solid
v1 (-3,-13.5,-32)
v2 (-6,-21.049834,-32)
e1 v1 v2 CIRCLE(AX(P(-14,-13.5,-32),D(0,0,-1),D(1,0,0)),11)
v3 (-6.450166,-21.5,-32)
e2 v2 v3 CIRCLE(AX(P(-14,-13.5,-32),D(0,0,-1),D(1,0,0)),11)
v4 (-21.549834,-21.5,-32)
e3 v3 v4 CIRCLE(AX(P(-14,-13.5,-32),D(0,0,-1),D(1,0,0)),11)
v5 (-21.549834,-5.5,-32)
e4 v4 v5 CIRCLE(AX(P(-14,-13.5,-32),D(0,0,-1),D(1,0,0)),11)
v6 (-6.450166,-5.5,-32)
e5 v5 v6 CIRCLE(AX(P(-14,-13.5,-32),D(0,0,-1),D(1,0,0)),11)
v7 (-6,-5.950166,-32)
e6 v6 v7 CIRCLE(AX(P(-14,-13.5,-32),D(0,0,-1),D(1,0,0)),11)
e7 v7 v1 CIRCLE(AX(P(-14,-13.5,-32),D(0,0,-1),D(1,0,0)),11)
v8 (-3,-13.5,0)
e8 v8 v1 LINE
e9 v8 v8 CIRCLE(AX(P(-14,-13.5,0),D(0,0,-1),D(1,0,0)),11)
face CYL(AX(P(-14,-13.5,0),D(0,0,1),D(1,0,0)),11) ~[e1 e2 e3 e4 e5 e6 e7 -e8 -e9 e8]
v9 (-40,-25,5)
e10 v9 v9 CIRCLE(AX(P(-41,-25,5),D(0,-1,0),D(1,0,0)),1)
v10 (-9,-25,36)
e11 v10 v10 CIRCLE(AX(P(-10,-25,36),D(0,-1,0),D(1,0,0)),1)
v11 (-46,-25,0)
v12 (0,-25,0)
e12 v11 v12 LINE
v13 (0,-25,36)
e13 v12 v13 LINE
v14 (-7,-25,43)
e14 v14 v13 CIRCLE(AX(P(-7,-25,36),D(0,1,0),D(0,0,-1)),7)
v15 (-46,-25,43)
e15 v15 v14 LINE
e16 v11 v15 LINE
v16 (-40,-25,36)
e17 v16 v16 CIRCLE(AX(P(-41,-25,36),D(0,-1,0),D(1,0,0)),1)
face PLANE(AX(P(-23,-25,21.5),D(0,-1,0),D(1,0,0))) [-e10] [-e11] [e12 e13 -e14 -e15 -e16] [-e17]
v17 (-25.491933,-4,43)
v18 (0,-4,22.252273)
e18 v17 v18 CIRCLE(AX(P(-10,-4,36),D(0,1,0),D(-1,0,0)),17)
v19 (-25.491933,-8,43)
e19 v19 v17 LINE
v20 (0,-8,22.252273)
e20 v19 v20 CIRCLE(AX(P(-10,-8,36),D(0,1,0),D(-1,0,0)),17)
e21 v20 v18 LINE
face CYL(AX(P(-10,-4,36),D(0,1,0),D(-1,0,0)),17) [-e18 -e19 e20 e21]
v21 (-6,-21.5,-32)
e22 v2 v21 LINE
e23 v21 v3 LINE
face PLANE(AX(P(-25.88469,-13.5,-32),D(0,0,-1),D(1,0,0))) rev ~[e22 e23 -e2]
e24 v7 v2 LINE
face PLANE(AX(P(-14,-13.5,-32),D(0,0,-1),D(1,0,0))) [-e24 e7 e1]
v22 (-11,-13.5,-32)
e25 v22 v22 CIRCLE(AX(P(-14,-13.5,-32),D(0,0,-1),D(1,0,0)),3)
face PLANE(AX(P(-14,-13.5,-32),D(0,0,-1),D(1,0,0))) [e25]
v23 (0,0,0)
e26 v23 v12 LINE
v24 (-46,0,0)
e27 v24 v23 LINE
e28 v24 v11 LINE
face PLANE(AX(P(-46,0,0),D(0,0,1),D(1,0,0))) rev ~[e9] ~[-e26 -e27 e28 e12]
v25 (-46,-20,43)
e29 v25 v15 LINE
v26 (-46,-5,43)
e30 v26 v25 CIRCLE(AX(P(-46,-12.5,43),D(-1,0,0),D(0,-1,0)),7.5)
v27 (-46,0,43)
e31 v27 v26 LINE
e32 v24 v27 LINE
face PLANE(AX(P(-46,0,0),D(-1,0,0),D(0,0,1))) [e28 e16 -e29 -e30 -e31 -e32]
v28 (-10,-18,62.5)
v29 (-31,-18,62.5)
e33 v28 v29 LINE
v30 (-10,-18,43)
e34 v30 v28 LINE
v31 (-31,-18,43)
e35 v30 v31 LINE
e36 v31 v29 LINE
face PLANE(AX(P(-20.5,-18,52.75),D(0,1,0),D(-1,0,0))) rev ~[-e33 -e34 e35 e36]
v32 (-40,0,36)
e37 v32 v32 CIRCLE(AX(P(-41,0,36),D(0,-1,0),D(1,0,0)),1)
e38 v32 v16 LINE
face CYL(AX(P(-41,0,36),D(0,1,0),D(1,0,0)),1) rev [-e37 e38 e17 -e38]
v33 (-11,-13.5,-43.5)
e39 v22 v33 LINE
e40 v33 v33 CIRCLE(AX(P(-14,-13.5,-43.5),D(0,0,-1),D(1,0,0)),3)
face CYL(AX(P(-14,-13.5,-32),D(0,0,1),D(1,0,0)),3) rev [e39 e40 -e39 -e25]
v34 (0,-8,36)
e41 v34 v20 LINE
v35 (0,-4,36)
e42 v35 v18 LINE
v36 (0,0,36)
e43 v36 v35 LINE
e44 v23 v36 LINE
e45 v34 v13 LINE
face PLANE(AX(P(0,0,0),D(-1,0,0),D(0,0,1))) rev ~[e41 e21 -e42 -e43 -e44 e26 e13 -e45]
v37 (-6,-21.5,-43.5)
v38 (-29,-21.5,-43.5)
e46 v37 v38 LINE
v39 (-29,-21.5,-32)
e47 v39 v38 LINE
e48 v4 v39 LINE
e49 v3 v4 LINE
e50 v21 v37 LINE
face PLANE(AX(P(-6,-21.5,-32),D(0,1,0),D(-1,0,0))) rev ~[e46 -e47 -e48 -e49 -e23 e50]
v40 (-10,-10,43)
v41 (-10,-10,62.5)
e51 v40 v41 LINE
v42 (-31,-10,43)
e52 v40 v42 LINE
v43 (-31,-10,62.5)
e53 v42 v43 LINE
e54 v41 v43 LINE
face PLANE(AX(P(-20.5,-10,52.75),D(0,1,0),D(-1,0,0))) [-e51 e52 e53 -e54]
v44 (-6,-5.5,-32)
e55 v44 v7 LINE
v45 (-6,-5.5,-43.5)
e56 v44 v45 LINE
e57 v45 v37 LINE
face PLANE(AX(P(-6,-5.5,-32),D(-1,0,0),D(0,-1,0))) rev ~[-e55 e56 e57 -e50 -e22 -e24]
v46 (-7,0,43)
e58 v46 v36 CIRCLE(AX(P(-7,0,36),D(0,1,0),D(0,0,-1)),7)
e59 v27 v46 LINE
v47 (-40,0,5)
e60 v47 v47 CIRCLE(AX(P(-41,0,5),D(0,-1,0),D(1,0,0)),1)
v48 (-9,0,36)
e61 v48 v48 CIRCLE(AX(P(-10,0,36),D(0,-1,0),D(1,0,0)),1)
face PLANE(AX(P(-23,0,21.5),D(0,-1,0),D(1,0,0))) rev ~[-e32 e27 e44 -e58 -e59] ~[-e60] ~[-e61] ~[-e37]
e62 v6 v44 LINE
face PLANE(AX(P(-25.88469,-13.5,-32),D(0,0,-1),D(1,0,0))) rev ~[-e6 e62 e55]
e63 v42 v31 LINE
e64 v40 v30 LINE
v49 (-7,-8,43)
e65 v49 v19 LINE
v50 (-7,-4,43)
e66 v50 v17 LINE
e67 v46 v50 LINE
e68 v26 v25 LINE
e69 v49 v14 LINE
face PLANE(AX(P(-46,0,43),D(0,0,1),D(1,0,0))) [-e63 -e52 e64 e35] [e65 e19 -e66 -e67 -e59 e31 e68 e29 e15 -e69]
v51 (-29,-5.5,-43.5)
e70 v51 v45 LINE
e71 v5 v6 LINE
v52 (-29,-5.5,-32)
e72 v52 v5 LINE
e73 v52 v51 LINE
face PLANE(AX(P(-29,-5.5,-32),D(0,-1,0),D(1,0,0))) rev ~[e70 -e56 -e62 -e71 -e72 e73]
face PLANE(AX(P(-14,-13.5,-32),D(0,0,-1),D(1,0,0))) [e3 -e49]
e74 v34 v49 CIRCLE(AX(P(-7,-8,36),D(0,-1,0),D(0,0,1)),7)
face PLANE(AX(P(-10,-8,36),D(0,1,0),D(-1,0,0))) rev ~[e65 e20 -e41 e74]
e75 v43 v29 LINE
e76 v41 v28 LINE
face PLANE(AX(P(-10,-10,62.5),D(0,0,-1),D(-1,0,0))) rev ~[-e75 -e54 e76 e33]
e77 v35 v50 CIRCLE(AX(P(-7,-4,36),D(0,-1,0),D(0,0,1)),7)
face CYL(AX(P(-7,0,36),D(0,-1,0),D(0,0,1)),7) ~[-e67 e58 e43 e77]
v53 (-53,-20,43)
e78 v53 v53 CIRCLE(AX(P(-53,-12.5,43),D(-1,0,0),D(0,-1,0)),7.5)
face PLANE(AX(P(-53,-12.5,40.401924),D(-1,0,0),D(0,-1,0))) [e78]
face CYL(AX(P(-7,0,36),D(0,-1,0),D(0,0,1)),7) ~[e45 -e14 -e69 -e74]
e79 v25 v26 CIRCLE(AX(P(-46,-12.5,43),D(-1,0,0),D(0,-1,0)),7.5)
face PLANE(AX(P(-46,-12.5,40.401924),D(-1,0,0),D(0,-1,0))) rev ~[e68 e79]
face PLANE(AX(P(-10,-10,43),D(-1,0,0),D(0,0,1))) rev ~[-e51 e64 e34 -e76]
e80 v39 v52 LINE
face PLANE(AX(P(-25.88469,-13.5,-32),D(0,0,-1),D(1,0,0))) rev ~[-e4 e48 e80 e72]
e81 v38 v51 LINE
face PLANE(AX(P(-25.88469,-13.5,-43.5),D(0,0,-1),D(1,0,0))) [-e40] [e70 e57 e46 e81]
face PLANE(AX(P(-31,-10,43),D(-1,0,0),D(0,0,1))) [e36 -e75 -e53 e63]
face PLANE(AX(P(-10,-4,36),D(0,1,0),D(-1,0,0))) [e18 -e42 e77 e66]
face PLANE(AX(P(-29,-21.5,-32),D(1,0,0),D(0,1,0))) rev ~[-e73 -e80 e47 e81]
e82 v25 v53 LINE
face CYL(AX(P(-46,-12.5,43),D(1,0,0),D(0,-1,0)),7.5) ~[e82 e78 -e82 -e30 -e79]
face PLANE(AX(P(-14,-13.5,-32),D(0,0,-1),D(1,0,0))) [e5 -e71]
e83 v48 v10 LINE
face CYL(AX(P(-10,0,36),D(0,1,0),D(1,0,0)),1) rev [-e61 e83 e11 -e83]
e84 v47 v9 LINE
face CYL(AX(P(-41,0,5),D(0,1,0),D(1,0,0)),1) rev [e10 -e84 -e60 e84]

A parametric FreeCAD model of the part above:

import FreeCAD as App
import Part
import Sketcher

V = App.Vector


def edges_at(feature, points):
    """Names of the edges that pass closest to the given points."""
    edges = feature.Shape.Edges
    near = lambda p: min(range(len(edges)), key=lambda i: edges[i].distToShape(Part.Vertex(*p))[0])
    return sorted({f"Edge{near(p) + 1}" for p in points})


def add_polygon(sketch, points):
    """Adds a closed chain of lines whose ends are joined by coincident constraints."""
    first, n = sketch.GeometryCount, len(points)
    for a, b in zip(points, points[1:] + points[:1]):
        sketch.addGeometry(Part.LineSegment(App.Vector(*a, 0), App.Vector(*b, 0)), False)
    for i in range(n):
        sketch.addConstraint(Sketcher.Constraint("Coincident", first + i, 2, first + (i + 1) % n, 1))

doc = App.newDocument("Part")
body = doc.addObject("PartDesign::Body", "Body")

sketch1 = body.newObject("Sketcher::SketchObject", "Sketch")
sketch1.AttachmentSupport = (doc.getObject("XZ_Plane"), [""])
sketch1.MapMode = "FlatFace"
add_polygon(sketch1, [(-46, 43), (-46, 0), (0, 0), (0, 43)])
sketch1.addGeometry(Part.Circle(V(-41, 5, 0), V(0, 0, 1), 1), False)
sketch1.addGeometry(Part.Circle(V(-41, 36, 0), V(0, 0, 1), 1), False)
sketch1.addGeometry(Part.Circle(V(-10, 36, 0), V(0, 0, 1), 1), False)
sketch1.addConstraint([
    Sketcher.Constraint("Vertical", 0),
    Sketcher.Constraint("Horizontal", 1),
    Sketcher.Constraint("Vertical", 2),
    Sketcher.Constraint("Horizontal", 3),
    Sketcher.Constraint("Coincident", 1, 2, -1, 1),
    Sketcher.Constraint("Equal", 4, 5),
    Sketcher.Constraint("Equal", 5, 6),
    Sketcher.Constraint("Horizontal", 5, 3, 6, 3),
    Sketcher.Constraint("Vertical", 4, 3, 5, 3),
    Sketcher.Constraint("Diameter", 4, 2.0),
    Sketcher.Constraint("DistanceX", 1, 1, 1, 2, 46.0),
    Sketcher.Constraint("DistanceY", 0, 2, 0, 1, 43.0),
    Sketcher.Constraint("DistanceX", 4, 3, -1, 1, 41.0),
    Sketcher.Constraint("DistanceY", -1, 1, 4, 3, 5.0),
    Sketcher.Constraint("DistanceY", -1, 1, 5, 3, 36.0),
    Sketcher.Constraint("DistanceX", 6, 3, -1, 1, 10.0),
])
pad1 = body.newObject("PartDesign::Pad", "Pad")
pad1.Profile = sketch1
pad1.Length = 25
doc.recompute()

fillet = body.newObject("PartDesign::Fillet", "Fillet")
fillet.Base = (pad1, edges_at(pad1, [(0, -12.5, 43)]))
fillet.Radius = 7

sketch2 = body.newObject("Sketcher::SketchObject", "Sketch001")
sketch2.AttachmentSupport = (doc.getObject("XZ_Plane"), [""])
sketch2.MapMode = "FlatFace"
sketch2.AttachmentOffset = App.Placement(V(0, 0, 4), App.Rotation())
sketch2.addGeometry([
    Part.Circle(V(-10, 36, 0), V(0, 0, 1), 17),
    Part.Circle(V(-10, 36, 0), V(0, 0, 1), 1),
], False)
sketch2.addConstraint([
    Sketcher.Constraint("Coincident", 1, 3, 0, 3),
    Sketcher.Constraint("Diameter", 0, 34.0),
    Sketcher.Constraint("Diameter", 1, 2.0),
    Sketcher.Constraint("DistanceX", 0, 3, -1, 1, 10.0),
    Sketcher.Constraint("DistanceY", -1, 1, 0, 3, 36.0),
])
pad2 = body.newObject("PartDesign::Pad", "Pad001")
pad2.Profile = sketch2
pad2.Length = 4

sketch3 = body.newObject("Sketcher::SketchObject", "Sketch002")
sketch3.AttachmentSupport = (doc.getObject("XZ_Plane"), [""])
sketch3.MapMode = "FlatFace"
sketch3.AttachmentOffset = App.Placement(V(0, 0, 10), App.Rotation())
add_polygon(sketch3, [(-10, 62.5), (-10, 43), (-31, 43), (-31, 62.5)])
sketch3.addConstraint([
    Sketcher.Constraint("Vertical", 0),
    Sketcher.Constraint("Horizontal", 1),
    Sketcher.Constraint("Vertical", 2),
    Sketcher.Constraint("Horizontal", 3),
    Sketcher.Constraint("DistanceX", 1, 2, 1, 1, 21.0),
    Sketcher.Constraint("DistanceY", 0, 2, 0, 1, 19.5),
    Sketcher.Constraint("DistanceX", 0, 2, -1, 1, 10.0),
    Sketcher.Constraint("DistanceY", -1, 1, 0, 2, 43.0),
])
pad3 = body.newObject("PartDesign::Pad", "Pad002")
pad3.Profile = sketch3
pad3.Length = 8

sketch4 = body.newObject("Sketcher::SketchObject", "Sketch003")
sketch4.AttachmentSupport = (doc.getObject("YZ_Plane"), [""])
sketch4.MapMode = "FlatFace"
sketch4.AttachmentOffset = App.Placement(V(0, 0, -46), App.Rotation())
sketch4.addGeometry(Part.Circle(V(-12.5, 43, 0), V(0, 0, 1), 7.5), False)
sketch4.addConstraint([
    Sketcher.Constraint("Diameter", 0, 15.0),
    Sketcher.Constraint("DistanceY", -1, 1, 0, 3, 43.0),
    Sketcher.Constraint("DistanceX", 0, 3, -1, 1, 12.5),
])
pad4 = body.newObject("PartDesign::Pad", "Pad003")
pad4.Profile = sketch4
pad4.Length = 7
pad4.Reversed = True

sketch5 = body.newObject("Sketcher::SketchObject", "Sketch004")
sketch5.AttachmentSupport = (doc.getObject("XY_Plane"), [""])
sketch5.MapMode = "FlatFace"
sketch5.addGeometry(Part.Circle(V(-14, -13.5, 0), V(0, 0, 1), 11), False)
sketch5.addConstraint([
    Sketcher.Constraint("Diameter", 0, 22.0),
    Sketcher.Constraint("DistanceX", 0, 3, -1, 1, 14.0),
    Sketcher.Constraint("DistanceY", 0, 3, -1, 1, 13.5),
])
pad5 = body.newObject("PartDesign::Pad", "Pad004")
pad5.Profile = sketch5
pad5.Length = 32
pad5.Reversed = True

sketch6 = body.newObject("Sketcher::SketchObject", "Sketch005")
sketch6.AttachmentSupport = (doc.getObject("XY_Plane"), [""])
sketch6.MapMode = "FlatFace"
sketch6.AttachmentOffset = App.Placement(V(0, 0, -32), App.Rotation())
add_polygon(sketch6, [(-29, -21.5), (-29, -5.5), (-6, -5.5), (-6, -21.5)])
sketch6.addGeometry(Part.Circle(V(-14, -13.5, 0), V(0, 0, 1), 3), False)
sketch6.addConstraint([
    Sketcher.Constraint("Vertical", 0),
    Sketcher.Constraint("Horizontal", 1),
    Sketcher.Constraint("Vertical", 2),
    Sketcher.Constraint("Horizontal", 3),
    Sketcher.Constraint("Diameter", 4, 6.0),
    Sketcher.Constraint("DistanceX", 1, 1, 1, 2, 23.0),
    Sketcher.Constraint("DistanceY", 0, 1, 0, 2, 16.0),
    Sketcher.Constraint("DistanceX", 4, 3, -1, 1, 14.0),
    Sketcher.Constraint("DistanceX", 0, 2, -1, 1, 29.0),
    Sketcher.Constraint("DistanceY", 4, 3, 0, 2, 8.0),
    Sketcher.Constraint("DistanceY", 4, 3, -1, 1, 13.5),
])
pad6 = body.newObject("PartDesign::Pad", "Pad005")
pad6.Profile = sketch6
pad6.Length = 11.5
pad6.Reversed = True

doc.recompute()
